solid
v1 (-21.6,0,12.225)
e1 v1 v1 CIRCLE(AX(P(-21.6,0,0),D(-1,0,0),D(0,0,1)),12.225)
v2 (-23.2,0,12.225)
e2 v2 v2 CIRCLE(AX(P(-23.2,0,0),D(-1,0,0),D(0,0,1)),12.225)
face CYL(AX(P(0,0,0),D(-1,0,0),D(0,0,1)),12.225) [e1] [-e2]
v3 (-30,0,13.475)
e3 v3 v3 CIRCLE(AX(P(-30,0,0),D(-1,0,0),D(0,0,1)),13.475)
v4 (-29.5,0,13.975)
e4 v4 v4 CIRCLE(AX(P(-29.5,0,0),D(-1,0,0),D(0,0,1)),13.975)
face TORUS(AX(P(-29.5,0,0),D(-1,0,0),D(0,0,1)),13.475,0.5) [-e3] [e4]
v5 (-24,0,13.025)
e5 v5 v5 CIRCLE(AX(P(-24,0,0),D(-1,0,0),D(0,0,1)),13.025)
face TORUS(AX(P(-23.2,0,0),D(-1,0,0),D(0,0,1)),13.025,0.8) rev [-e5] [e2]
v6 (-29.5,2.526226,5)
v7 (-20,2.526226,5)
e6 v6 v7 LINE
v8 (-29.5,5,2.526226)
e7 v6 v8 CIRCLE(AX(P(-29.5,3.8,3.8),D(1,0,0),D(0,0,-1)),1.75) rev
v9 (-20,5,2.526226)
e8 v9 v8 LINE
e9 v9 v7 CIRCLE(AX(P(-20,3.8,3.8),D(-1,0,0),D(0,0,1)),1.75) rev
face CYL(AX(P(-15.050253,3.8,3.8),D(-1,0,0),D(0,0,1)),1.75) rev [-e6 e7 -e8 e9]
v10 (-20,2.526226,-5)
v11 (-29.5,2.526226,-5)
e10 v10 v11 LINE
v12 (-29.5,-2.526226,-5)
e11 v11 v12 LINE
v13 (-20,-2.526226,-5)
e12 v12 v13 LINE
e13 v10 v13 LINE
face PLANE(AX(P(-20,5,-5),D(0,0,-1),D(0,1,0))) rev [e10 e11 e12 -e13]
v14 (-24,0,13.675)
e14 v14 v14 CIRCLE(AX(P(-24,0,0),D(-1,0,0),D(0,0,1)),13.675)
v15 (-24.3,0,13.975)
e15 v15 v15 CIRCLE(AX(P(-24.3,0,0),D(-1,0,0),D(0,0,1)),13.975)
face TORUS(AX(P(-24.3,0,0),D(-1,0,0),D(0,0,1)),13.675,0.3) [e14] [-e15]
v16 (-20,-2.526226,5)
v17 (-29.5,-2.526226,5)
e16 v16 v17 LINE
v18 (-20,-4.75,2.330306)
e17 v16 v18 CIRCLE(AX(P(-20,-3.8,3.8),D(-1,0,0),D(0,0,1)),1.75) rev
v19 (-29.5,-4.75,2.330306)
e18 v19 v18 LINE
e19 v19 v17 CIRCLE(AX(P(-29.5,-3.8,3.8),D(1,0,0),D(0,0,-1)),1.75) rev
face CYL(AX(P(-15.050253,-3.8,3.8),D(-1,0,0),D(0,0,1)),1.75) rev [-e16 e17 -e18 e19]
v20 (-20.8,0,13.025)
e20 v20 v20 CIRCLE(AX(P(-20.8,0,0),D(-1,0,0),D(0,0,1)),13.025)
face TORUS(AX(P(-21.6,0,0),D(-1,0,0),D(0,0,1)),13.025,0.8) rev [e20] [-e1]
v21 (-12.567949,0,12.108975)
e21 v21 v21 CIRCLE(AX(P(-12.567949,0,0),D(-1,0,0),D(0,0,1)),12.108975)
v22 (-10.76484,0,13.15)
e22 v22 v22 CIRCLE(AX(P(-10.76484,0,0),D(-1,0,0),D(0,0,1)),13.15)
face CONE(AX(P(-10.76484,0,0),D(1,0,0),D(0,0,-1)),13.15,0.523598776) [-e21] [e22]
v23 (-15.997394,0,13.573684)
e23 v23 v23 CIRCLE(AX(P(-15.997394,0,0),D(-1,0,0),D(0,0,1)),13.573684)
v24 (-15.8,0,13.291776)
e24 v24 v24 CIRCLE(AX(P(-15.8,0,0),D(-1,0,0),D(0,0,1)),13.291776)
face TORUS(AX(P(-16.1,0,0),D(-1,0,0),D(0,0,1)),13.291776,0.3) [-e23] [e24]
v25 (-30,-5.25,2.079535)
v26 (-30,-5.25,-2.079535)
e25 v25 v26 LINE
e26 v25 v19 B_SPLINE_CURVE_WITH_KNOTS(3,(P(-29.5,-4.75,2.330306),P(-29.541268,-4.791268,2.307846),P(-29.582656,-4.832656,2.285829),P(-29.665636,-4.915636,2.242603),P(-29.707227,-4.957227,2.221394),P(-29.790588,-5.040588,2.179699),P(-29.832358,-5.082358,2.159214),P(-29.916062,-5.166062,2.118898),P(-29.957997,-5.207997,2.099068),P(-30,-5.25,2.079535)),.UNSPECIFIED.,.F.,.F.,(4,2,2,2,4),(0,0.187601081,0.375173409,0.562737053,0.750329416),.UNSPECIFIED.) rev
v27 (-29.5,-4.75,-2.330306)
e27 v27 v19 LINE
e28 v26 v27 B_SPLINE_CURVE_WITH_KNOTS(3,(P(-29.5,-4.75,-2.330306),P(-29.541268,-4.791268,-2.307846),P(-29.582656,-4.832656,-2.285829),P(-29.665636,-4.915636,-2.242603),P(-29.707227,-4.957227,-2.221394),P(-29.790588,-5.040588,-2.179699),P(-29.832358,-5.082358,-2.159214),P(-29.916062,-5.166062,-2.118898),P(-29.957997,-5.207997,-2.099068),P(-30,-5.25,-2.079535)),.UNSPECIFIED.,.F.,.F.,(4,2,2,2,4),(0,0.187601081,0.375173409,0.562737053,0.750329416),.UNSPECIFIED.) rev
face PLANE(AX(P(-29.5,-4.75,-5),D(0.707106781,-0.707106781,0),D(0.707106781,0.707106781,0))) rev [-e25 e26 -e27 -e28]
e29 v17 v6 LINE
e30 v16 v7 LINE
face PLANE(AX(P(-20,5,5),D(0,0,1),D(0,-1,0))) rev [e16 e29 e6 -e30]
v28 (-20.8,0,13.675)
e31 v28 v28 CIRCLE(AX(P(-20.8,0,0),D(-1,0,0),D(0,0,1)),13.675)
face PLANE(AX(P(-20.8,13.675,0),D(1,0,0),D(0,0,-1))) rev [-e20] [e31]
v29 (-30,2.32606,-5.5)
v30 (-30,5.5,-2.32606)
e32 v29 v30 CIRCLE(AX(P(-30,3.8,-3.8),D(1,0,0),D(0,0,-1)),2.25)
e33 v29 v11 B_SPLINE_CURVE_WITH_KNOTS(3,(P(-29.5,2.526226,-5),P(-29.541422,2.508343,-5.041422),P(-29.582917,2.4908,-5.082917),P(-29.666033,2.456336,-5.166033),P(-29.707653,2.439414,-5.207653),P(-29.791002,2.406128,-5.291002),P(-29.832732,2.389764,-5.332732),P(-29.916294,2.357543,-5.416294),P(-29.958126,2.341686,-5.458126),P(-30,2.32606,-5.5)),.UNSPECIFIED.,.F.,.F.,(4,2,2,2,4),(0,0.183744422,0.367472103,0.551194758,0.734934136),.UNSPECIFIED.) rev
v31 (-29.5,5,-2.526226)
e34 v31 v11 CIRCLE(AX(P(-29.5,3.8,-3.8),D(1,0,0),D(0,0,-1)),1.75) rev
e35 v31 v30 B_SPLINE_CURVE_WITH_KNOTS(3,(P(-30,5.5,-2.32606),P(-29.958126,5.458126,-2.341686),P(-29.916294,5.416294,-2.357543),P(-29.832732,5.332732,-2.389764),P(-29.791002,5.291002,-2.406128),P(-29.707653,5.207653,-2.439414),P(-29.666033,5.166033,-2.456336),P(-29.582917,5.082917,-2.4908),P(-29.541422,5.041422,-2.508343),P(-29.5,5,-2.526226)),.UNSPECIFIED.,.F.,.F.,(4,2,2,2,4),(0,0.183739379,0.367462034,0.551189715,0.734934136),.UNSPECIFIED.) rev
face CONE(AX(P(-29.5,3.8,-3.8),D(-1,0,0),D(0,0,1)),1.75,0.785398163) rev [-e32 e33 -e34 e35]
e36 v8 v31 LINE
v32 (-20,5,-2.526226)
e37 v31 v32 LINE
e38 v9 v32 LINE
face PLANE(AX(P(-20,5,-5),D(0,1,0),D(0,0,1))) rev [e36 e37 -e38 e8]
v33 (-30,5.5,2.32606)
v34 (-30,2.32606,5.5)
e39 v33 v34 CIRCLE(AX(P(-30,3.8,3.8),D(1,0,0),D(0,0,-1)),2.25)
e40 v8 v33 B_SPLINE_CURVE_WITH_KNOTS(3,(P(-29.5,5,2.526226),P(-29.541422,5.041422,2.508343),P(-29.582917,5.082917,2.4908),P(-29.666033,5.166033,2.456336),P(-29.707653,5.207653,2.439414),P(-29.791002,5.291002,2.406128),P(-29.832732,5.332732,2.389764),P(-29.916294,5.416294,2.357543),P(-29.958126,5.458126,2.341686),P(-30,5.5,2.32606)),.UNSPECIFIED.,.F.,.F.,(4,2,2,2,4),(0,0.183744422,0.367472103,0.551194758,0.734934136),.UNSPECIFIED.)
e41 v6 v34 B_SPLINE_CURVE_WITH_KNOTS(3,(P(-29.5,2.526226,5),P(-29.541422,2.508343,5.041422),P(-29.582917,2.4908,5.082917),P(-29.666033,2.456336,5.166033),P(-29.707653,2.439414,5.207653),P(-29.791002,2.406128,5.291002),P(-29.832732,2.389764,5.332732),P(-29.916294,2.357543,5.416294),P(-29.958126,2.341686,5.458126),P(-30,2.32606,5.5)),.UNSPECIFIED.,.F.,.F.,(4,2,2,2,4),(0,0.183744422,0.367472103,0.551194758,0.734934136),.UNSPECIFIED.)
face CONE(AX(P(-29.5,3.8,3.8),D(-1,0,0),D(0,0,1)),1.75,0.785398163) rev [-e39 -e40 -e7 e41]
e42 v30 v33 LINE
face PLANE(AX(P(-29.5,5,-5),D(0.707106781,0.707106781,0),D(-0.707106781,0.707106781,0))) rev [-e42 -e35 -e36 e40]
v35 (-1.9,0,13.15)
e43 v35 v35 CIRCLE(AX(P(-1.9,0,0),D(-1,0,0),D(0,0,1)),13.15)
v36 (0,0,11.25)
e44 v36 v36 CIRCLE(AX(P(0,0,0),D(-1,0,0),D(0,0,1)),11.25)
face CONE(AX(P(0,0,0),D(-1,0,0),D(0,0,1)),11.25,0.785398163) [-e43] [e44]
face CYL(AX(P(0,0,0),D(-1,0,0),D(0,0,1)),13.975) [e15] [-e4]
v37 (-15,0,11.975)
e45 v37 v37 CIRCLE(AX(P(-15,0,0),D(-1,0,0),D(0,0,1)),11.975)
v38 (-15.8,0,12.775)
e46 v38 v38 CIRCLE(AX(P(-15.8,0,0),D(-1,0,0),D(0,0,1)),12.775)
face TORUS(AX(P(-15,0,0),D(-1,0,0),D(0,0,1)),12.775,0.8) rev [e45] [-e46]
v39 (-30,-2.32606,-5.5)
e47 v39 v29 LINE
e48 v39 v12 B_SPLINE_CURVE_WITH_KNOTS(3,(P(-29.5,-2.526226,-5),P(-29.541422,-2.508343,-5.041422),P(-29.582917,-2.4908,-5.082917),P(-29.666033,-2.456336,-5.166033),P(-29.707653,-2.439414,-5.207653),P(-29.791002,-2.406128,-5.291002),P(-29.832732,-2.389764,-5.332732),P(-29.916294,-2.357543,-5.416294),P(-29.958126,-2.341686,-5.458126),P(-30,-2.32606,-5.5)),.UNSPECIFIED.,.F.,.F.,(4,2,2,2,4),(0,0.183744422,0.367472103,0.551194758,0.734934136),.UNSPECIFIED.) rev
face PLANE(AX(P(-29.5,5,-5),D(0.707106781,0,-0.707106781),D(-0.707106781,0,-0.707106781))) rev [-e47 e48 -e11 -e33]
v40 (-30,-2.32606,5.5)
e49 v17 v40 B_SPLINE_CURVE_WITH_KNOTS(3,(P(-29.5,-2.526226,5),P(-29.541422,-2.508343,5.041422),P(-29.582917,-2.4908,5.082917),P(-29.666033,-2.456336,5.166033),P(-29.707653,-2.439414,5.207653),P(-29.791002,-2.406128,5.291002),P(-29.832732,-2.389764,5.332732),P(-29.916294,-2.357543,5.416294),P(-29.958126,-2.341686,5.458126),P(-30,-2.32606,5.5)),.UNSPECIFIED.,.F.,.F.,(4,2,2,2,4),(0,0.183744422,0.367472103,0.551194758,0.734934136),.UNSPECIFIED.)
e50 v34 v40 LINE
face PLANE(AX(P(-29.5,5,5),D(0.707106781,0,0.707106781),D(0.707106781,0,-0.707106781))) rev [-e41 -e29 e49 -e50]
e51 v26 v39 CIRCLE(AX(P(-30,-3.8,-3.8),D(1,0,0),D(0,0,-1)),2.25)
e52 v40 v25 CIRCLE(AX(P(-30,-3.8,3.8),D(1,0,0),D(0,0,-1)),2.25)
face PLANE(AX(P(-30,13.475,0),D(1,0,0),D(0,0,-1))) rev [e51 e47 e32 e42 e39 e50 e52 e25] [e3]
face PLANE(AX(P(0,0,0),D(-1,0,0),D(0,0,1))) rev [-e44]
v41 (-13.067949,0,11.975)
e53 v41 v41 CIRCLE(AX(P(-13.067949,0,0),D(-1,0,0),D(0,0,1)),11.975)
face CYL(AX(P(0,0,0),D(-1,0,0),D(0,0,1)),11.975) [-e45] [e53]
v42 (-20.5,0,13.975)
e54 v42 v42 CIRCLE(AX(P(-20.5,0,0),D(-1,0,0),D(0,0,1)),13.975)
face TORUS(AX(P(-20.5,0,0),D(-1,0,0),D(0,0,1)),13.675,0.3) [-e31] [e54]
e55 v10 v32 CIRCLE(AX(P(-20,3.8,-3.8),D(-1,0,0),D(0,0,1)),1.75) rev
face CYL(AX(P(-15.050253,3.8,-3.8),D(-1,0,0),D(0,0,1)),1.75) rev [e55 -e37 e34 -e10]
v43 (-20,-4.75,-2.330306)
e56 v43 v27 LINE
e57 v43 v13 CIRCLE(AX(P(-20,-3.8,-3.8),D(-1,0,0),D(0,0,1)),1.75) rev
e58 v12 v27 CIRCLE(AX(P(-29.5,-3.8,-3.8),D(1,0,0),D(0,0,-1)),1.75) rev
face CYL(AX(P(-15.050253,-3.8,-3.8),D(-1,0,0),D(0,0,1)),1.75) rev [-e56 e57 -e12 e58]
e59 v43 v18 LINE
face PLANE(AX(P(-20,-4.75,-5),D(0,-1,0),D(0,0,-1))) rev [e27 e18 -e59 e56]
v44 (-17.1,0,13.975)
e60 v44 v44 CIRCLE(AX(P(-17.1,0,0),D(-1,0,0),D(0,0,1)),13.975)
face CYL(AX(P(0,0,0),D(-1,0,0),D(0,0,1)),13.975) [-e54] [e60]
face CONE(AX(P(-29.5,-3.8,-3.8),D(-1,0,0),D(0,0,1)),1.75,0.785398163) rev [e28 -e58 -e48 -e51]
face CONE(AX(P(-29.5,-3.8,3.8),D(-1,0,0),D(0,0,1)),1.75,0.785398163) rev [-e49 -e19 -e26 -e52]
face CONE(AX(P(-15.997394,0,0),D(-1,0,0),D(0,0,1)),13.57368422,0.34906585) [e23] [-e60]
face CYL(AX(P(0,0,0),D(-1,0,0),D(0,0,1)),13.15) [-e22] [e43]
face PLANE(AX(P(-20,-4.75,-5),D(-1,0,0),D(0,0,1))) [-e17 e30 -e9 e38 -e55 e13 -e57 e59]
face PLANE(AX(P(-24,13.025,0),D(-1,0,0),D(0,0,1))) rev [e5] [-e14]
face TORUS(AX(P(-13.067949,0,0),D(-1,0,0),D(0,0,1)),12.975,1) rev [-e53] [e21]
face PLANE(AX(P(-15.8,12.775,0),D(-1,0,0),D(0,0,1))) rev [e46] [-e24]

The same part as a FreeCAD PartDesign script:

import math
import FreeCAD as App
import Part
import Sketcher
from FreeCAD import Vector
Q = App.Units.Quantity


def edges_at(feature, points):
    """Names of the edges that pass closest to the given points."""
    edges = feature.Shape.Edges
    near = lambda p: min(range(len(edges)), key=lambda i: edges[i].distToShape(Part.Vertex(*p))[0])
    return sorted({f"Edge{near(p) + 1}" for p in points})


def add_polygon(sketch, points):
    """Adds a closed chain of lines whose ends are joined by coincident constraints."""
    first, n = sketch.GeometryCount, len(points)
    for a, b in zip(points, points[1:] + points[:1]):
        sketch.addGeometry(Part.LineSegment(App.Vector(*a, 0), App.Vector(*b, 0)), False)
    for i in range(n):
        sketch.addConstraint(Sketcher.Constraint("Coincident", first + i, 2, first + (i + 1) % n, 1))

doc = App.newDocument("Part")
params = doc.addObject("Spreadsheet::Sheet", "Params")
for row, (alias, value) in enumerate([
    ("sketch1_radius", "1 mm"),
    ("sketch1_radius2", "0.8 mm"),
    ("sketch1_radius3", "0.3 mm"),
    ("sketch1_radius4", "0.5 mm"),
    ("sketch1_width", "30 mm"),
    ("revolution_angle", "360 deg"),
    ("sketch2_height", "10 mm"),
    ("sketch2_width", "9.75 mm"),
    ("pocket1_length", "10 mm"),
    ("sketch3_diameter", "3.5 mm"),
    ("pocket2_length", "10 mm"),
    ("chamfer_size", "0.5 mm"),
], start=1):
    params.set(f"A{row}", alias)
    params.set(f"B{row}", "=" + value)
    params.setAlias(f"B{row}", alias)

body = doc.addObject("PartDesign::Body", "Body")

# Sketch on XY plane
sketch1 = body.newObject("Sketcher::SketchObject", "Sketch")
sketch1.AttachmentSupport = (doc.getObject("XY_Plane"), [""])
sketch1.MapMode = "FlatFace"
sketch1.addGeometry(Part.LineSegment(Vector(0, 0, 0), Vector(0, 11.25, 0)), False)
sketch1.addGeometry(Part.LineSegment(Vector(0, 11.25, 0), Vector(-1.9, 13.15, 0)), False)
sketch1.addGeometry(Part.LineSegment(Vector(-1.9, 13.15, 0), Vector(-10.76, 13.15, 0)), False)
sketch1.addGeometry(Part.LineSegment(Vector(-10.76, 13.15, 0), Vector(-12.57, 12.11, 0)), False)
sketch1.addGeometry(Part.ArcOfCircle(Part.Circle(Vector(-13.07, 12.98, 0), Vector(0, 0, 1), 1), math.radians(-90), math.radians(-60)), False)
sketch1.addGeometry(Part.LineSegment(Vector(-13.07, 11.97, 0), Vector(-15, 11.97, 0)), False)
sketch1.addGeometry(Part.ArcOfCircle(Part.Circle(Vector(-15, 12.78, 0), Vector(0, 0, 1), 0.8), math.radians(180), math.radians(270)), False)
sketch1.addGeometry(Part.LineSegment(Vector(-15.8, 12.78, 0), Vector(-15.8, 13.29, 0)), False)
sketch1.addGeometry(Part.ArcOfCircle(Part.Circle(Vector(-16.1, 13.29, 0), Vector(0, 0, 1), 0.3), math.radians(0), math.radians(70)), False)
sketch1.addGeometry(Part.LineSegment(Vector(-16, 13.57, 0), Vector(-17.1, 13.97, 0)), False)
sketch1.addGeometry(Part.LineSegment(Vector(-17.1, 13.97, 0), Vector(-20.5, 13.97, 0)), False)
sketch1.addGeometry(Part.ArcOfCircle(Part.Circle(Vector(-20.5, 13.67, 0), Vector(0, 0, 1), 0.3), math.radians(90), math.radians(180)), False)
sketch1.addGeometry(Part.LineSegment(Vector(-20.8, 13.68, 0), Vector(-20.8, 13.03, 0)), False)
sketch1.addGeometry(Part.ArcOfCircle(Part.Circle(Vector(-21.6, 13.03, 0), Vector(0, 0, 1), 0.8), math.radians(-90), math.radians(0)), False)
sketch1.addGeometry(Part.LineSegment(Vector(-21.6, 12.22, 0), Vector(-23.2, 12.22, 0)), False)
sketch1.addGeometry(Part.ArcOfCircle(Part.Circle(Vector(-23.2, 13.03, 0), Vector(0, 0, 1), 0.8), math.radians(180), math.radians(270)), False)
sketch1.addGeometry(Part.LineSegment(Vector(-24, 13.03, 0), Vector(-24, 13.68, 0)), False)
sketch1.addGeometry(Part.ArcOfCircle(Part.Circle(Vector(-24.3, 13.67, 0), Vector(0, 0, 1), 0.3), math.radians(0), math.radians(90)), False)
sketch1.addGeometry(Part.LineSegment(Vector(-24.3, 13.97, 0), Vector(-29.5, 13.97, 0)), False)
sketch1.addGeometry(Part.ArcOfCircle(Part.Circle(Vector(-29.5, 13.48, 0), Vector(0, 0, 1), 0.5), math.radians(90), math.radians(180)), False)
sketch1.addGeometry(Part.LineSegment(Vector(-30, 13.47, 0), Vector(-30, 0, 0)), False)
sketch1.addGeometry(Part.LineSegment(Vector(-30, 0, 0), Vector(0, 0, 0)), False)
sketch1.addConstraint(Sketcher.Constraint("Coincident", 0, 2, 1, 1))
sketch1.addConstraint(Sketcher.Constraint("Coincident", 1, 2, 2, 1))
sketch1.addConstraint(Sketcher.Constraint("Coincident", 2, 2, 3, 1))
sketch1.addConstraint(Sketcher.Constraint("Tangent", 3, 2, 4, 2))
sketch1.addConstraint(Sketcher.Constraint("Tangent", 4, 1, 5, 1))
sketch1.addConstraint(Sketcher.Constraint("Tangent", 5, 2, 6, 2))
sketch1.addConstraint(Sketcher.Constraint("Tangent", 6, 1, 7, 1))
sketch1.addConstraint(Sketcher.Constraint("Tangent", 7, 2, 8, 1))
sketch1.addConstraint(Sketcher.Constraint("Tangent", 8, 2, 9, 1))
sketch1.addConstraint(Sketcher.Constraint("Coincident", 9, 2, 10, 1))
sketch1.addConstraint(Sketcher.Constraint("Tangent", 10, 2, 11, 1))
sketch1.addConstraint(Sketcher.Constraint("Tangent", 11, 2, 12, 1))
sketch1.addConstraint(Sketcher.Constraint("Tangent", 12, 2, 13, 2))
sketch1.addConstraint(Sketcher.Constraint("Tangent", 13, 1, 14, 1))
sketch1.addConstraint(Sketcher.Constraint("Tangent", 14, 2, 15, 2))
sketch1.addConstraint(Sketcher.Constraint("Tangent", 15, 1, 16, 1))
sketch1.addConstraint(Sketcher.Constraint("Tangent", 16, 2, 17, 1))
sketch1.addConstraint(Sketcher.Constraint("Tangent", 17, 2, 18, 1))
sketch1.addConstraint(Sketcher.Constraint("Tangent", 18, 2, 19, 1))
sketch1.addConstraint(Sketcher.Constraint("Tangent", 19, 2, 20, 1))
sketch1.addConstraint(Sketcher.Constraint("Coincident", 20, 2, 21, 1))
sketch1.addConstraint(Sketcher.Constraint("Coincident", 21, 2, 0, 1))
sketch1.addConstraint(Sketcher.Constraint("Vertical", 0))
sketch1.addConstraint(Sketcher.Constraint("Horizontal", 2))
sketch1.addConstraint(Sketcher.Constraint("Horizontal", 5))
sketch1.addConstraint(Sketcher.Constraint("Vertical", 7))
sketch1.addConstraint(Sketcher.Constraint("Horizontal", 10))
sketch1.addConstraint(Sketcher.Constraint("Vertical", 12))
sketch1.addConstraint(Sketcher.Constraint("Horizontal", 14))
sketch1.addConstraint(Sketcher.Constraint("Vertical", 16))
sketch1.addConstraint(Sketcher.Constraint("Horizontal", 18))
sketch1.addConstraint(Sketcher.Constraint("Vertical", 20))
sketch1.addConstraint(Sketcher.Constraint("Horizontal", 21))
sketch1.addConstraint(Sketcher.Constraint("Coincident", 21, 2, -1, 1))
sketch1.addConstraint(Sketcher.Constraint("Equal", 8, 11))
sketch1.addConstraint(Sketcher.Constraint("Equal", 6, 13))
sketch1.addConstraint(Sketcher.Constraint("Equal", 13, 15))
sketch1.addConstraint(Sketcher.Constraint("Equal", 11, 17))
sketch1.addConstraint(Sketcher.Constraint("Horizontal", 11, 3, 17, 3))
sketch1.addConstraint(Sketcher.Constraint("Radius", 4, Q("1 mm")))
sketch1.addConstraint(Sketcher.Constraint("Radius", 6, Q("0.8 mm")))
sketch1.addConstraint(Sketcher.Constraint("Radius", 8, Q("0.3 mm")))
sketch1.addConstraint(Sketcher.Constraint("Radius", 19, Q("0.5 mm")))
sketch1.addConstraint(Sketcher.Constraint("DistanceX", 21, 1, 21, 2, Q("30 mm")))
sketch1.addConstraint(Sketcher.Constraint("Angle", 1, Q("135 deg")))
sketch1.addConstraint(Sketcher.Constraint("Angle", 3, Q("-150 deg")))
sketch1.addConstraint(Sketcher.Constraint("Angle", 9, Q("160 deg")))
sketch1.addConstraint(Sketcher.Constraint("DistanceX", 10, 2, 10, 1, Q("3.4 mm")))
sketch1.addConstraint(Sketcher.Constraint("DistanceX", 14, 2, 14, 1, Q("1.6 mm")))
sketch1.addConstraint(Sketcher.Constraint("DistanceX", 18, 2, 18, 1, Q("5.2 mm")))
sketch1.addConstraint(Sketcher.Constraint("DistanceX", 6, 3, -1, 1, Q("15 mm")))
sketch1.addConstraint(Sketcher.Constraint("DistanceY", 0, 1, 0, 2, Q("11.25 mm")))
sketch1.addConstraint(Sketcher.Constraint("DistanceY", 12, 2, 12, 1, Q("0.65 mm")))
sketch1.addConstraint(Sketcher.Constraint("DistanceX", 1, 2, -1, 1, Q("1.9 mm")))
sketch1.addConstraint(Sketcher.Constraint("DistanceY", 6, 3, 11, 3, Q("0.9 mm")))
sketch1.addConstraint(Sketcher.Constraint("DistanceY", 20, 2, 20, 1, Q("13.475 mm")))
sketch1.addConstraint(Sketcher.Constraint("DistanceX", 2, 2, 2, 1, Q("8.86484 mm")))
sketch1.setExpression("Constraints[39]", "Params.sketch1_radius")
sketch1.setExpression("Constraints[40]", "Params.sketch1_radius2")
sketch1.setExpression("Constraints[41]", "Params.sketch1_radius3")
sketch1.setExpression("Constraints[42]", "Params.sketch1_radius4")
sketch1.setExpression("Constraints[43]", "Params.sketch1_width")
revolution = body.newObject("PartDesign::Revolution", "Revolution")
revolution.Profile = sketch1
revolution.ReferenceAxis = (sketch1, ["H_Axis"])
revolution.setExpression("Angle", "Params.revolution_angle")

# Sketch on YZ plane
sketch2 = body.newObject("Sketcher::SketchObject", "Sketch001")
sketch2.AttachmentSupport = (doc.getObject("YZ_Plane"), [""])
sketch2.MapMode = "FlatFace"
sketch2.AttachmentOffset = App.Placement(Vector(0, 0, -30), App.Rotation())
add_polygon(sketch2, [(5, -5), (-5, -5), (-5, 5), (5, 5)])  # lines 0-3
sketch2.addConstraint(Sketcher.Constraint("Horizontal", 0))
sketch2.addConstraint(Sketcher.Constraint("Vertical", 1))
sketch2.addConstraint(Sketcher.Constraint("Horizontal", 2))
sketch2.addConstraint(Sketcher.Constraint("Vertical", 3))
sketch2.addConstraint(Sketcher.Constraint("DistanceY", 1, 1, 1, 2, Q("10 mm")))
sketch2.addConstraint(Sketcher.Constraint("DistanceY", 0, 2, -1, 1, Q("5 mm")))
sketch2.addConstraint(Sketcher.Constraint("DistanceX", -1, 1, 2, 2, Q("5 mm")))
sketch2.addConstraint(Sketcher.Constraint("DistanceX", 0, 2, 0, 1, Q("9.75 mm")))
sketch2.setExpression("Constraints[8]", "Params.sketch2_height")
sketch2.setExpression("Constraints[11]", "Params.sketch2_width")
pocket1 = body.newObject("PartDesign::Pocket", "Pocket")
pocket1.Profile = sketch2
pocket1.setExpression("Length", "Params.pocket1_length")
pocket1.Reversed = True

# Sketch on YZ plane
sketch3 = body.newObject("Sketcher::SketchObject", "Sketch002")
sketch3.AttachmentSupport = (doc.getObject("YZ_Plane"), [""])
sketch3.MapMode = "FlatFace"
sketch3.AttachmentOffset = App.Placement(Vector(0, 0, -30), App.Rotation())
sketch3.addGeometry(Part.Circle(Vector(3.8, -3.8, 0), Vector(0, 0, 1), 1.8), False)
sketch3.addGeometry(Part.Circle(Vector(3.8, 3.8, 0), Vector(0, 0, 1), 1.8), False)
sketch3.addGeometry(Part.Circle(Vector(-3.8, -3.8, 0), Vector(0, 0, 1), 1.8), False)
sketch3.addGeometry(Part.Circle(Vector(-3.8, 3.8, 0), Vector(0, 0, 1), 1.8), False)
sketch3.addConstraint(Sketcher.Constraint("Equal", 0, 1))
sketch3.addConstraint(Sketcher.Constraint("Equal", 1, 2))
sketch3.addConstraint(Sketcher.Constraint("Equal", 2, 3))
sketch3.addConstraint(Sketcher.Constraint("Symmetric", 1, 3, 2, 3, -1, 1))
sketch3.addConstraint(Sketcher.Constraint("Symmetric", 0, 3, 3, 3, -1, 1))
sketch3.addConstraint(Sketcher.Constraint("Symmetric", 0, 3, 2, 3, -2))
sketch3.addConstraint(Sketcher.Constraint("Diameter", 0, Q("3.5 mm")))
sketch3.addConstraint(Sketcher.Constraint("DistanceX", -1, 1, 0, 3, Q("3.8 mm")))
sketch3.addConstraint(Sketcher.Constraint("DistanceY", 0, 3, -1, 1, Q("3.8 mm")))
sketch3.setExpression("Constraints[6]", "Params.sketch3_diameter")
pocket2 = body.newObject("PartDesign::Pocket", "Pocket001")
pocket2.Profile = sketch3
pocket2.setExpression("Length", "Params.pocket2_length")
pocket2.Reversed = True
doc.recompute()

chamfer = body.newObject("PartDesign::Chamfer", "Chamfer")
chamfer.Base = (pocket2, edges_at(pocket2, [
    (-30, -4.75, 0),
    (-30, 0, 5),
    (-30, 5, 0),
    (-30, 0, -5),
    (-30, 5.037, 5.037),
    (-30, -5.145, -4.92),
    (-30, -5.145, 4.92),
    (-30, 5.037, -5.037),
]))
chamfer.setExpression("Size", "Params.chamfer_size")

doc.recompute()
